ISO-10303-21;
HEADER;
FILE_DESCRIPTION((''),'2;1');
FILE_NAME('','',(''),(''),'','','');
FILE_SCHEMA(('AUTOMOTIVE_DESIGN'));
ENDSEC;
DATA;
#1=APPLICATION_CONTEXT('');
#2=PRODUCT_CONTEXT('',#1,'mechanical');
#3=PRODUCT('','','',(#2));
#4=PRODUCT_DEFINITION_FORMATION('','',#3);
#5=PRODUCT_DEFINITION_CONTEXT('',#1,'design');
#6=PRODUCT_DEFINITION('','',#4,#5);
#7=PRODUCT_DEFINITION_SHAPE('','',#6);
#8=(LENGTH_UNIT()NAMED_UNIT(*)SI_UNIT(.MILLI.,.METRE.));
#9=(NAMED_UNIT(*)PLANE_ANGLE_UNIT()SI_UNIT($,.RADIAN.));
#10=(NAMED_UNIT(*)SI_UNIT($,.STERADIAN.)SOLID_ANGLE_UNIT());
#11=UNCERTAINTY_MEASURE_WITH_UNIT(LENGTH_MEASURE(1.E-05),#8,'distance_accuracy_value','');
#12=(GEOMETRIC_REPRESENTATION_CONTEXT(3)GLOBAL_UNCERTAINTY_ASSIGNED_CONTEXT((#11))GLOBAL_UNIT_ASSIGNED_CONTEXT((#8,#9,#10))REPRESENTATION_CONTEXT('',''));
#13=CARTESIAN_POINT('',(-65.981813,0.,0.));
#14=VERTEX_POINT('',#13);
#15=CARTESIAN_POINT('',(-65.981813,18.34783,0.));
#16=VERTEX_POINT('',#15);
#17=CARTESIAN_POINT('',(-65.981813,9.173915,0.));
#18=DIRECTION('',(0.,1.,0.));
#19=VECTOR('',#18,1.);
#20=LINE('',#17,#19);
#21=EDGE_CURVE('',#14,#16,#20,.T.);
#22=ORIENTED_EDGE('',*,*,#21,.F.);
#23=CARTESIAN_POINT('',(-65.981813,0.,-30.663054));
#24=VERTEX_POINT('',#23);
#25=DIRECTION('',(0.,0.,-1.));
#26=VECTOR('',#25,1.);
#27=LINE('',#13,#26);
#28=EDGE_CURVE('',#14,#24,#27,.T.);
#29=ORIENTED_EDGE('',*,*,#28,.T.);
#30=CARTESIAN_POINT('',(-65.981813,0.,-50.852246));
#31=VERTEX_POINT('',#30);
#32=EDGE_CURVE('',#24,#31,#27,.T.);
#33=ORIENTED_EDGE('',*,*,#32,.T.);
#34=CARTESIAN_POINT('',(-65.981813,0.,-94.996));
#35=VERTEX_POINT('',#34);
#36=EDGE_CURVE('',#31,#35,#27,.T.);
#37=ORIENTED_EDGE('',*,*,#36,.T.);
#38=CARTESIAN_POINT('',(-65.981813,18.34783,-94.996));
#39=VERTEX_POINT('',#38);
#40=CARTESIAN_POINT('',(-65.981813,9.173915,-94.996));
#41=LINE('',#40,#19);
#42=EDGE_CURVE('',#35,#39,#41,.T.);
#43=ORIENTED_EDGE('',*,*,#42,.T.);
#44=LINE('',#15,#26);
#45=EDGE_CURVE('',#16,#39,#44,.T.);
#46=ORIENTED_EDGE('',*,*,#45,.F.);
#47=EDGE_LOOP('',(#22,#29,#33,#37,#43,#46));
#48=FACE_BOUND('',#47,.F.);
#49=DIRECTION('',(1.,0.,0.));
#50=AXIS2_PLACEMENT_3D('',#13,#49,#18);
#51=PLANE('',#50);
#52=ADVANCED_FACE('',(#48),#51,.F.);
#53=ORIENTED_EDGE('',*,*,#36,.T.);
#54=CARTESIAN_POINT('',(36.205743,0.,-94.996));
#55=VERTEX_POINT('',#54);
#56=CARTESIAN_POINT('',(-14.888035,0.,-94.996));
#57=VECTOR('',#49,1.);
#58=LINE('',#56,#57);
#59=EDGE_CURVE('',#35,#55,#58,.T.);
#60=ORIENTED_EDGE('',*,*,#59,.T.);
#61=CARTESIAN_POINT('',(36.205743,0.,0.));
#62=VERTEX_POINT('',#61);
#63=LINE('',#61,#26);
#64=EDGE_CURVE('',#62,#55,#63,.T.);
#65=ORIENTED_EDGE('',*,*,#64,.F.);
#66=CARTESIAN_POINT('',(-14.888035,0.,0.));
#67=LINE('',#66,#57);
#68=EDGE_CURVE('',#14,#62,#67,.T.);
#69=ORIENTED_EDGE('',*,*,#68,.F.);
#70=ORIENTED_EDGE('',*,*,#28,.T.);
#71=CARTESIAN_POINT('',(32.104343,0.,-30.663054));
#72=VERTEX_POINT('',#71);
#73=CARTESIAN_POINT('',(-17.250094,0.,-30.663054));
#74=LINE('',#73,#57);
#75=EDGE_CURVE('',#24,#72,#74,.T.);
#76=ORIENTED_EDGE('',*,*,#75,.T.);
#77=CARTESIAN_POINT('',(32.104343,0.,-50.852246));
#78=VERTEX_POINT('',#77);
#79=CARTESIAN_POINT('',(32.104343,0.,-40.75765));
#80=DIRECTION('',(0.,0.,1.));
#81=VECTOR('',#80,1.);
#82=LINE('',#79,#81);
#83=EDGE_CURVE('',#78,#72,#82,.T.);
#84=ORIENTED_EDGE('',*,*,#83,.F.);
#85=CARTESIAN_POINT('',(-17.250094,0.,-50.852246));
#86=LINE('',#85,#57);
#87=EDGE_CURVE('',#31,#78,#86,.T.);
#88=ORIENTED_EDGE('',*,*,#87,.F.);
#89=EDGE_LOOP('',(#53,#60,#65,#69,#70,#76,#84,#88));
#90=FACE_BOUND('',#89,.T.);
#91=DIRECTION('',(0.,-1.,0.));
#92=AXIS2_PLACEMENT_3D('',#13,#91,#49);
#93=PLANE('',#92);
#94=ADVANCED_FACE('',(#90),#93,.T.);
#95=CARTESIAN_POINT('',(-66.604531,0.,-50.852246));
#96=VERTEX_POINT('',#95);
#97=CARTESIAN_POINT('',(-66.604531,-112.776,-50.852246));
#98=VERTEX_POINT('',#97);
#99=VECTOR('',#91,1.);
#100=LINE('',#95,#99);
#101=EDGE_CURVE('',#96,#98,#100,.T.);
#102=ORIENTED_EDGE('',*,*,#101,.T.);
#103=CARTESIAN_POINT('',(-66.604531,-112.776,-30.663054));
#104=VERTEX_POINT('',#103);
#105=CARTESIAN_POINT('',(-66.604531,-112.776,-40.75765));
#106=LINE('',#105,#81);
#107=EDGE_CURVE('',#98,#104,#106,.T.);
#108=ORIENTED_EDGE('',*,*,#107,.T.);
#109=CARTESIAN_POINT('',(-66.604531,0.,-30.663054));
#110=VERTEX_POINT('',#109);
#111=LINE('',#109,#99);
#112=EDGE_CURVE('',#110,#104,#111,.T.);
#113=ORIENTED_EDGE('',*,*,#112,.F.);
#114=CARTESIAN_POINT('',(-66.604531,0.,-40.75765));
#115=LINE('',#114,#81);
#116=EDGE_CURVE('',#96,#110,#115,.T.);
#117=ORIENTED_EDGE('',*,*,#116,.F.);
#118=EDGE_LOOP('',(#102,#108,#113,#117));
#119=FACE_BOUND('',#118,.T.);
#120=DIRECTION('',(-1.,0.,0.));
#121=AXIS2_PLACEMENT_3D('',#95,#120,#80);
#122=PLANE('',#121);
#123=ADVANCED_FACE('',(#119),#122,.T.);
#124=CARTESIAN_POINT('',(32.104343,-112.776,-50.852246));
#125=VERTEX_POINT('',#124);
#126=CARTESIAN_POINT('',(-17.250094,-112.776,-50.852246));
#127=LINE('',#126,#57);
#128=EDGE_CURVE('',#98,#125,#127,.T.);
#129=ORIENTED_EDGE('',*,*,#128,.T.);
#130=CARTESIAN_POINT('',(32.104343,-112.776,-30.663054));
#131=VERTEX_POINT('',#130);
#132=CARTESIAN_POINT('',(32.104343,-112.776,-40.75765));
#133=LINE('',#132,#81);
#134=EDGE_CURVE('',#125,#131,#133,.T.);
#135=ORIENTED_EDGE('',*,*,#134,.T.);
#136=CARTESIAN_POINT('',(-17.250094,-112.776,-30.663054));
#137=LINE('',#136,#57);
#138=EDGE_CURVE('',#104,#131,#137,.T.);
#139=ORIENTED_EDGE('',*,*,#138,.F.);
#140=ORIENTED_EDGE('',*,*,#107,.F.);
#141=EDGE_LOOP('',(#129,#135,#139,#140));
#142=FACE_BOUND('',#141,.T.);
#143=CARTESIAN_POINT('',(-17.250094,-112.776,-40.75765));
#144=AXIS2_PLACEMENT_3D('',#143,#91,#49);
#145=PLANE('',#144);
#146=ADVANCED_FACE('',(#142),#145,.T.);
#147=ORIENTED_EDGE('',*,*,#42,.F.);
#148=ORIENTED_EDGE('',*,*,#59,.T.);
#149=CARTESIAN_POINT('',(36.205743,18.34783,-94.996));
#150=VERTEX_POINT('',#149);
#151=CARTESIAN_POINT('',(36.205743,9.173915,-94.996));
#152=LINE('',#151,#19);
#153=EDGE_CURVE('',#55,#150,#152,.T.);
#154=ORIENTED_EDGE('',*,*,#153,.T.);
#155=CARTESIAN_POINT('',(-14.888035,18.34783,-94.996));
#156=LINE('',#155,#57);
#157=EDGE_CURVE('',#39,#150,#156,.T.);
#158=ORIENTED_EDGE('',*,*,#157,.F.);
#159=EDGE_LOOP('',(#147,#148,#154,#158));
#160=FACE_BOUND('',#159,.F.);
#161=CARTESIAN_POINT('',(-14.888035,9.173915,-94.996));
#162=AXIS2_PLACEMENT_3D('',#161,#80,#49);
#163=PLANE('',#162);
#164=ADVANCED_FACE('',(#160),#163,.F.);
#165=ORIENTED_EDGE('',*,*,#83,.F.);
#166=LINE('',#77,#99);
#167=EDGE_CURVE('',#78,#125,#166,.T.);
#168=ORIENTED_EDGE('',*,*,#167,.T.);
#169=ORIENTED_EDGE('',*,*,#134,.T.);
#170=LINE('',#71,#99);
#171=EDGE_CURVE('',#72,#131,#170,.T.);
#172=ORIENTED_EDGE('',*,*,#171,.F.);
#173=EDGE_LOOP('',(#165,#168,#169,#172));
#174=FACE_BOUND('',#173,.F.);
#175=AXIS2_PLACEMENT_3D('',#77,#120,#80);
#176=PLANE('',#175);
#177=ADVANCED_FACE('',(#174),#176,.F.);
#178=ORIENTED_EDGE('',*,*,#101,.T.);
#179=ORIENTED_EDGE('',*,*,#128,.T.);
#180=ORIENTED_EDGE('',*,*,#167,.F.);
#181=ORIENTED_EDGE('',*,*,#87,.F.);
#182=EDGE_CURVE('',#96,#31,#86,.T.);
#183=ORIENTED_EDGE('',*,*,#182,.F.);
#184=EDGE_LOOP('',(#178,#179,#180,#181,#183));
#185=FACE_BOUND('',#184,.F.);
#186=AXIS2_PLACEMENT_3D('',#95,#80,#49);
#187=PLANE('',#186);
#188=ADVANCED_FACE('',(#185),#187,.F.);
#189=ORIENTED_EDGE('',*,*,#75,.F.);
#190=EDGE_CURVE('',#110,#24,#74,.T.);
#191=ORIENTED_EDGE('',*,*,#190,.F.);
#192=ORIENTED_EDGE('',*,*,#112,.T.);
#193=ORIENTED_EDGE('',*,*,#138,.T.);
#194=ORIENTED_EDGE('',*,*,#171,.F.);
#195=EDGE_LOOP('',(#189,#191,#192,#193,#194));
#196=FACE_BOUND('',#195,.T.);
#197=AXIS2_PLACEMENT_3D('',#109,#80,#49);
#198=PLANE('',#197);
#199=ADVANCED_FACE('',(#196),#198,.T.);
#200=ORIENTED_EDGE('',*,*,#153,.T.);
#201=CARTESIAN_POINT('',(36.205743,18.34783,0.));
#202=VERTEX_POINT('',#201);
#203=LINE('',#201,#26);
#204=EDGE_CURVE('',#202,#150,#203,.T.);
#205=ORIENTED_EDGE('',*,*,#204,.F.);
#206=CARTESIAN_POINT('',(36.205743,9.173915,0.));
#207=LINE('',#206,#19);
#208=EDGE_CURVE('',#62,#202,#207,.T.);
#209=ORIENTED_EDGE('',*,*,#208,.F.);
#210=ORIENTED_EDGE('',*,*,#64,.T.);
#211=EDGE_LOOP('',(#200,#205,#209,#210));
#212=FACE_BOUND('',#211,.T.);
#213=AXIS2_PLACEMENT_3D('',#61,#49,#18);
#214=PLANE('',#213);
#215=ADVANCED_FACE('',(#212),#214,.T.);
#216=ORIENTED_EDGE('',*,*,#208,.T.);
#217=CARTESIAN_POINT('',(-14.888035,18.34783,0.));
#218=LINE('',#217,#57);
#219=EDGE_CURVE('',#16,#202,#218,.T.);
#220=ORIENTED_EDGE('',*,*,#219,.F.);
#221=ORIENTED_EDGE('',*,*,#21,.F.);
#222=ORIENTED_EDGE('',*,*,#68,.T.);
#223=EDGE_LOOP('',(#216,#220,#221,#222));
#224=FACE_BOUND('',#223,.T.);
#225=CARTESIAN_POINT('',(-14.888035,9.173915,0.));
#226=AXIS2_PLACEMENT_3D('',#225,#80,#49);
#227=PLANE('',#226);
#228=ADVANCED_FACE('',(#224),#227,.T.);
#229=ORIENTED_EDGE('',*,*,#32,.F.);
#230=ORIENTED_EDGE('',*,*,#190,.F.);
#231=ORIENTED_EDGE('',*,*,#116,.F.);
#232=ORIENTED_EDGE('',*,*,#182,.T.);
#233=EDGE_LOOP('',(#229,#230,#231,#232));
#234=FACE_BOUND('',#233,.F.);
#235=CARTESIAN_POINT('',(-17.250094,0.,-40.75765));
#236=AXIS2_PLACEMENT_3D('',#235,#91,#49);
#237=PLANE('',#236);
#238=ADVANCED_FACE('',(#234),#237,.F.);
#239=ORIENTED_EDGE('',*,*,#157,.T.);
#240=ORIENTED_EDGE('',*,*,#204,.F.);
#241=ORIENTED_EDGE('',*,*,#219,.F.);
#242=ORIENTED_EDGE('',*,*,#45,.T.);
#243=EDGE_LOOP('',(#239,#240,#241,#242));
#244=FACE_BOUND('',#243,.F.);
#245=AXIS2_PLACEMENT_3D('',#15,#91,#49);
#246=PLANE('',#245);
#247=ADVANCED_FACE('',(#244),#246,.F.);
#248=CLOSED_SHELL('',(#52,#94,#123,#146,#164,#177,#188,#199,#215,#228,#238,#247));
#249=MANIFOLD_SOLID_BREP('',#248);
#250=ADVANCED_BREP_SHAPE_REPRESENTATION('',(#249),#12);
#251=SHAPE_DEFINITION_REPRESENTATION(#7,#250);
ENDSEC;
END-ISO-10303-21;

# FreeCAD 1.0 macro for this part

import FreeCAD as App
import Part
import Sketcher

V = App.Vector

doc = App.newDocument("Part")
params = doc.addObject("Spreadsheet::Sheet", "Params")
for row, (alias, value) in enumerate([
    ("pad1_length", "3.74 in"),
    ("pad2_length", "4.44 in"),
], start=1):
    params.set(f"A{row}", alias)
    params.set(f"B{row}", "=" + value)
    params.setAlias(f"B{row}", alias)

body = doc.addObject("PartDesign::Body", "Body")

sketch1 = doc.addObject("Sketcher::SketchObject", "Sketch")
body.addObject(sketch1)
sketch1.AttachmentSupport = (doc.XY_Plane, [""])
sketch1.MapMode = "FlatFace"
sketch1.addGeometry(Part.LineSegment(V(-65.981813, 18.34783, 0), V(-65.981813, 0, 0)), False)
sketch1.addGeometry(Part.LineSegment(V(-65.981813, 0, 0), V(36.205743, 0, 0)), False)
sketch1.addGeometry(Part.LineSegment(V(36.205743, 0, 0), V(36.205743, 18.34783, 0)), False)
sketch1.addGeometry(Part.LineSegment(V(36.205743, 18.34783, 0), V(-65.981813, 18.34783, 0)), False)
sketch1.addConstraint(Sketcher.Constraint("Coincident", 0, 2, 1, 1))
sketch1.addConstraint(Sketcher.Constraint("Coincident", 1, 2, 2, 1))
sketch1.addConstraint(Sketcher.Constraint("Coincident", 2, 2, 3, 1))
sketch1.addConstraint(Sketcher.Constraint("Coincident", 3, 2, 0, 1))
sketch1.addConstraint(Sketcher.Constraint("Vertical", 0))
sketch1.addConstraint(Sketcher.Constraint("Horizontal", 1))
sketch1.addConstraint(Sketcher.Constraint("Vertical", 2))
sketch1.addConstraint(Sketcher.Constraint("Horizontal", 3))
sketch1.addConstraint(Sketcher.Constraint("PointOnObject", 0, 2, -1))
sketch1.addConstraint(Sketcher.Constraint("DistanceY", 0, 2, 0, 1, 18.34783))
sketch1.addConstraint(Sketcher.Constraint("DistanceX", 1, 1, 1, 2, 102.187556))
sketch1.addConstraint(Sketcher.Constraint("DistanceX", 0, 2, -1, 1, 65.981813))
pad1 = doc.addObject("PartDesign::Pad", "Pad")
body.addObject(pad1)
pad1.Profile = sketch1
pad1.setExpression("Length", "Params.pad1_length")
pad1.Reversed = True

sketch2 = doc.addObject("Sketcher::SketchObject", "Sketch001")
body.addObject(sketch2)
sketch2.AttachmentSupport = (doc.XZ_Plane, [""])
sketch2.MapMode = "FlatFace"
sketch2.addGeometry(Part.LineSegment(V(-66.604531, -30.663054, 0), V(-66.604531, -50.852246, 0)), False)
sketch2.addGeometry(Part.LineSegment(V(-66.604531, -50.852246, 0), V(32.104343, -50.852246, 0)), False)
sketch2.addGeometry(Part.LineSegment(V(32.104343, -50.852246, 0), V(32.104343, -30.663054, 0)), False)
sketch2.addGeometry(Part.LineSegment(V(32.104343, -30.663054, 0), V(-66.604531, -30.663054, 0)), False)
sketch2.addConstraint(Sketcher.Constraint("Coincident", 0, 2, 1, 1))
sketch2.addConstraint(Sketcher.Constraint("Coincident", 1, 2, 2, 1))
sketch2.addConstraint(Sketcher.Constraint("Coincident", 2, 2, 3, 1))
sketch2.addConstraint(Sketcher.Constraint("Coincident", 3, 2, 0, 1))
sketch2.addConstraint(Sketcher.Constraint("Vertical", 0))
sketch2.addConstraint(Sketcher.Constraint("Horizontal", 1))
sketch2.addConstraint(Sketcher.Constraint("Vertical", 2))
sketch2.addConstraint(Sketcher.Constraint("Horizontal", 3))
sketch2.addConstraint(Sketcher.Constraint("DistanceX", 1, 1, 1, 2, 98.708875))
sketch2.addConstraint(Sketcher.Constraint("DistanceY", 0, 2, 0, 1, 20.189193))
sketch2.addConstraint(Sketcher.Constraint("DistanceX", 0, 2, -1, 1, 66.604531))
sketch2.addConstraint(Sketcher.Constraint("DistanceY", 0, 2, -1, 1, 50.852246))
pad2 = doc.addObject("PartDesign::Pad", "Pad001")
body.addObject(pad2)
pad2.Profile = sketch2
pad2.setExpression("Length", "Params.pad2_length")

doc.recompute()
